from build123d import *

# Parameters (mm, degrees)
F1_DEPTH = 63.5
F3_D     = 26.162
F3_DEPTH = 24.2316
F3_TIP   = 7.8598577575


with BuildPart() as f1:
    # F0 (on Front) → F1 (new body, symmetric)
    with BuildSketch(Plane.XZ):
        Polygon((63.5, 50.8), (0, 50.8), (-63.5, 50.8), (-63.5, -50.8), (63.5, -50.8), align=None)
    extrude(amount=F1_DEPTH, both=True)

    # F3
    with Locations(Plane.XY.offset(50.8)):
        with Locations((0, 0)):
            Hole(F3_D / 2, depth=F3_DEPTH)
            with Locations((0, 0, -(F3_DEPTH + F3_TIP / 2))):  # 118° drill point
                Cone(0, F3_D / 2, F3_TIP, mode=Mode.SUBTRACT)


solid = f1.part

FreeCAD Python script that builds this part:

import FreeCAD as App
import Part
import Sketcher

V = App.Vector
Q = App.Units.Quantity


def add_polygon(sketch, points):
    """Adds a closed chain of lines whose ends are joined by coincident constraints."""
    first, n = sketch.GeometryCount, len(points)
    for a, b in zip(points, points[1:] + points[:1]):
        sketch.addGeometry(Part.LineSegment(App.Vector(*a, 0), App.Vector(*b, 0)), False)
    for i in range(n):
        sketch.addConstraint(Sketcher.Constraint("Coincident", first + i, 2, first + (i + 1) % n, 1))

doc = App.newDocument("Part")
body = doc.addObject("PartDesign::Body", "Body")

# Sketch on XZ plane
sketch1 = body.newObject("Sketcher::SketchObject", "Sketch")
sketch1.AttachmentSupport = (doc.getObject("XZ_Plane"), [""])
sketch1.MapMode = "FlatFace"
add_polygon(sketch1, [(64, 51), (-64, 51), (-64, -51), (64, -51)])  # lines 0-3
sketch1.addConstraint(Sketcher.Constraint("Horizontal", 0))
sketch1.addConstraint(Sketcher.Constraint("Vertical", 1))
sketch1.addConstraint(Sketcher.Constraint("Horizontal", 2))
sketch1.addConstraint(Sketcher.Constraint("Vertical", 3))
sketch1.addConstraint(Sketcher.Constraint("Symmetric", 0, 2, 2, 2, -1, 1))
sketch1.addConstraint(Sketcher.Constraint("DistanceX", 0, 2, 0, 1, Q("5 in")))
sketch1.addConstraint(Sketcher.Constraint("DistanceY", 1, 2, 1, 1, Q("4 in")))
pad1 = body.newObject("PartDesign::Pad", "Pad")
pad1.Profile = sketch1
pad1.Length = Q("5 in")
pad1.Midplane = True

# Sketch on XY plane
sketch2 = body.newObject("Sketcher::SketchObject", "Sketch001")
sketch2.AttachmentSupport = (doc.getObject("XY_Plane"), [""])
sketch2.MapMode = "FlatFace"
sketch2.AttachmentOffset = App.Placement(V(0, 0, 2 * 25.4), App.Rotation())
sketch2.addGeometry(Part.Circle(V(0, 0, 0), V(0, 0, 1), 13), False)
sketch2.addConstraint(Sketcher.Constraint("Coincident", 0, 3, -1, 1))
sketch2.addConstraint(Sketcher.Constraint("Diameter", 0, Q("1.03 in")))
doc.recompute()
hole = body.newObject("PartDesign::Hole", "Hole")
hole.Profile = sketch2
hole.ThreadType = "None"
hole.Diameter = Q("1.03 in")
hole.DepthType = "Dimension"
hole.Depth = Q("0.954 in")
hole.DrillPoint = "Angled"
hole.DrillPointAngle = 118

doc.recompute()
